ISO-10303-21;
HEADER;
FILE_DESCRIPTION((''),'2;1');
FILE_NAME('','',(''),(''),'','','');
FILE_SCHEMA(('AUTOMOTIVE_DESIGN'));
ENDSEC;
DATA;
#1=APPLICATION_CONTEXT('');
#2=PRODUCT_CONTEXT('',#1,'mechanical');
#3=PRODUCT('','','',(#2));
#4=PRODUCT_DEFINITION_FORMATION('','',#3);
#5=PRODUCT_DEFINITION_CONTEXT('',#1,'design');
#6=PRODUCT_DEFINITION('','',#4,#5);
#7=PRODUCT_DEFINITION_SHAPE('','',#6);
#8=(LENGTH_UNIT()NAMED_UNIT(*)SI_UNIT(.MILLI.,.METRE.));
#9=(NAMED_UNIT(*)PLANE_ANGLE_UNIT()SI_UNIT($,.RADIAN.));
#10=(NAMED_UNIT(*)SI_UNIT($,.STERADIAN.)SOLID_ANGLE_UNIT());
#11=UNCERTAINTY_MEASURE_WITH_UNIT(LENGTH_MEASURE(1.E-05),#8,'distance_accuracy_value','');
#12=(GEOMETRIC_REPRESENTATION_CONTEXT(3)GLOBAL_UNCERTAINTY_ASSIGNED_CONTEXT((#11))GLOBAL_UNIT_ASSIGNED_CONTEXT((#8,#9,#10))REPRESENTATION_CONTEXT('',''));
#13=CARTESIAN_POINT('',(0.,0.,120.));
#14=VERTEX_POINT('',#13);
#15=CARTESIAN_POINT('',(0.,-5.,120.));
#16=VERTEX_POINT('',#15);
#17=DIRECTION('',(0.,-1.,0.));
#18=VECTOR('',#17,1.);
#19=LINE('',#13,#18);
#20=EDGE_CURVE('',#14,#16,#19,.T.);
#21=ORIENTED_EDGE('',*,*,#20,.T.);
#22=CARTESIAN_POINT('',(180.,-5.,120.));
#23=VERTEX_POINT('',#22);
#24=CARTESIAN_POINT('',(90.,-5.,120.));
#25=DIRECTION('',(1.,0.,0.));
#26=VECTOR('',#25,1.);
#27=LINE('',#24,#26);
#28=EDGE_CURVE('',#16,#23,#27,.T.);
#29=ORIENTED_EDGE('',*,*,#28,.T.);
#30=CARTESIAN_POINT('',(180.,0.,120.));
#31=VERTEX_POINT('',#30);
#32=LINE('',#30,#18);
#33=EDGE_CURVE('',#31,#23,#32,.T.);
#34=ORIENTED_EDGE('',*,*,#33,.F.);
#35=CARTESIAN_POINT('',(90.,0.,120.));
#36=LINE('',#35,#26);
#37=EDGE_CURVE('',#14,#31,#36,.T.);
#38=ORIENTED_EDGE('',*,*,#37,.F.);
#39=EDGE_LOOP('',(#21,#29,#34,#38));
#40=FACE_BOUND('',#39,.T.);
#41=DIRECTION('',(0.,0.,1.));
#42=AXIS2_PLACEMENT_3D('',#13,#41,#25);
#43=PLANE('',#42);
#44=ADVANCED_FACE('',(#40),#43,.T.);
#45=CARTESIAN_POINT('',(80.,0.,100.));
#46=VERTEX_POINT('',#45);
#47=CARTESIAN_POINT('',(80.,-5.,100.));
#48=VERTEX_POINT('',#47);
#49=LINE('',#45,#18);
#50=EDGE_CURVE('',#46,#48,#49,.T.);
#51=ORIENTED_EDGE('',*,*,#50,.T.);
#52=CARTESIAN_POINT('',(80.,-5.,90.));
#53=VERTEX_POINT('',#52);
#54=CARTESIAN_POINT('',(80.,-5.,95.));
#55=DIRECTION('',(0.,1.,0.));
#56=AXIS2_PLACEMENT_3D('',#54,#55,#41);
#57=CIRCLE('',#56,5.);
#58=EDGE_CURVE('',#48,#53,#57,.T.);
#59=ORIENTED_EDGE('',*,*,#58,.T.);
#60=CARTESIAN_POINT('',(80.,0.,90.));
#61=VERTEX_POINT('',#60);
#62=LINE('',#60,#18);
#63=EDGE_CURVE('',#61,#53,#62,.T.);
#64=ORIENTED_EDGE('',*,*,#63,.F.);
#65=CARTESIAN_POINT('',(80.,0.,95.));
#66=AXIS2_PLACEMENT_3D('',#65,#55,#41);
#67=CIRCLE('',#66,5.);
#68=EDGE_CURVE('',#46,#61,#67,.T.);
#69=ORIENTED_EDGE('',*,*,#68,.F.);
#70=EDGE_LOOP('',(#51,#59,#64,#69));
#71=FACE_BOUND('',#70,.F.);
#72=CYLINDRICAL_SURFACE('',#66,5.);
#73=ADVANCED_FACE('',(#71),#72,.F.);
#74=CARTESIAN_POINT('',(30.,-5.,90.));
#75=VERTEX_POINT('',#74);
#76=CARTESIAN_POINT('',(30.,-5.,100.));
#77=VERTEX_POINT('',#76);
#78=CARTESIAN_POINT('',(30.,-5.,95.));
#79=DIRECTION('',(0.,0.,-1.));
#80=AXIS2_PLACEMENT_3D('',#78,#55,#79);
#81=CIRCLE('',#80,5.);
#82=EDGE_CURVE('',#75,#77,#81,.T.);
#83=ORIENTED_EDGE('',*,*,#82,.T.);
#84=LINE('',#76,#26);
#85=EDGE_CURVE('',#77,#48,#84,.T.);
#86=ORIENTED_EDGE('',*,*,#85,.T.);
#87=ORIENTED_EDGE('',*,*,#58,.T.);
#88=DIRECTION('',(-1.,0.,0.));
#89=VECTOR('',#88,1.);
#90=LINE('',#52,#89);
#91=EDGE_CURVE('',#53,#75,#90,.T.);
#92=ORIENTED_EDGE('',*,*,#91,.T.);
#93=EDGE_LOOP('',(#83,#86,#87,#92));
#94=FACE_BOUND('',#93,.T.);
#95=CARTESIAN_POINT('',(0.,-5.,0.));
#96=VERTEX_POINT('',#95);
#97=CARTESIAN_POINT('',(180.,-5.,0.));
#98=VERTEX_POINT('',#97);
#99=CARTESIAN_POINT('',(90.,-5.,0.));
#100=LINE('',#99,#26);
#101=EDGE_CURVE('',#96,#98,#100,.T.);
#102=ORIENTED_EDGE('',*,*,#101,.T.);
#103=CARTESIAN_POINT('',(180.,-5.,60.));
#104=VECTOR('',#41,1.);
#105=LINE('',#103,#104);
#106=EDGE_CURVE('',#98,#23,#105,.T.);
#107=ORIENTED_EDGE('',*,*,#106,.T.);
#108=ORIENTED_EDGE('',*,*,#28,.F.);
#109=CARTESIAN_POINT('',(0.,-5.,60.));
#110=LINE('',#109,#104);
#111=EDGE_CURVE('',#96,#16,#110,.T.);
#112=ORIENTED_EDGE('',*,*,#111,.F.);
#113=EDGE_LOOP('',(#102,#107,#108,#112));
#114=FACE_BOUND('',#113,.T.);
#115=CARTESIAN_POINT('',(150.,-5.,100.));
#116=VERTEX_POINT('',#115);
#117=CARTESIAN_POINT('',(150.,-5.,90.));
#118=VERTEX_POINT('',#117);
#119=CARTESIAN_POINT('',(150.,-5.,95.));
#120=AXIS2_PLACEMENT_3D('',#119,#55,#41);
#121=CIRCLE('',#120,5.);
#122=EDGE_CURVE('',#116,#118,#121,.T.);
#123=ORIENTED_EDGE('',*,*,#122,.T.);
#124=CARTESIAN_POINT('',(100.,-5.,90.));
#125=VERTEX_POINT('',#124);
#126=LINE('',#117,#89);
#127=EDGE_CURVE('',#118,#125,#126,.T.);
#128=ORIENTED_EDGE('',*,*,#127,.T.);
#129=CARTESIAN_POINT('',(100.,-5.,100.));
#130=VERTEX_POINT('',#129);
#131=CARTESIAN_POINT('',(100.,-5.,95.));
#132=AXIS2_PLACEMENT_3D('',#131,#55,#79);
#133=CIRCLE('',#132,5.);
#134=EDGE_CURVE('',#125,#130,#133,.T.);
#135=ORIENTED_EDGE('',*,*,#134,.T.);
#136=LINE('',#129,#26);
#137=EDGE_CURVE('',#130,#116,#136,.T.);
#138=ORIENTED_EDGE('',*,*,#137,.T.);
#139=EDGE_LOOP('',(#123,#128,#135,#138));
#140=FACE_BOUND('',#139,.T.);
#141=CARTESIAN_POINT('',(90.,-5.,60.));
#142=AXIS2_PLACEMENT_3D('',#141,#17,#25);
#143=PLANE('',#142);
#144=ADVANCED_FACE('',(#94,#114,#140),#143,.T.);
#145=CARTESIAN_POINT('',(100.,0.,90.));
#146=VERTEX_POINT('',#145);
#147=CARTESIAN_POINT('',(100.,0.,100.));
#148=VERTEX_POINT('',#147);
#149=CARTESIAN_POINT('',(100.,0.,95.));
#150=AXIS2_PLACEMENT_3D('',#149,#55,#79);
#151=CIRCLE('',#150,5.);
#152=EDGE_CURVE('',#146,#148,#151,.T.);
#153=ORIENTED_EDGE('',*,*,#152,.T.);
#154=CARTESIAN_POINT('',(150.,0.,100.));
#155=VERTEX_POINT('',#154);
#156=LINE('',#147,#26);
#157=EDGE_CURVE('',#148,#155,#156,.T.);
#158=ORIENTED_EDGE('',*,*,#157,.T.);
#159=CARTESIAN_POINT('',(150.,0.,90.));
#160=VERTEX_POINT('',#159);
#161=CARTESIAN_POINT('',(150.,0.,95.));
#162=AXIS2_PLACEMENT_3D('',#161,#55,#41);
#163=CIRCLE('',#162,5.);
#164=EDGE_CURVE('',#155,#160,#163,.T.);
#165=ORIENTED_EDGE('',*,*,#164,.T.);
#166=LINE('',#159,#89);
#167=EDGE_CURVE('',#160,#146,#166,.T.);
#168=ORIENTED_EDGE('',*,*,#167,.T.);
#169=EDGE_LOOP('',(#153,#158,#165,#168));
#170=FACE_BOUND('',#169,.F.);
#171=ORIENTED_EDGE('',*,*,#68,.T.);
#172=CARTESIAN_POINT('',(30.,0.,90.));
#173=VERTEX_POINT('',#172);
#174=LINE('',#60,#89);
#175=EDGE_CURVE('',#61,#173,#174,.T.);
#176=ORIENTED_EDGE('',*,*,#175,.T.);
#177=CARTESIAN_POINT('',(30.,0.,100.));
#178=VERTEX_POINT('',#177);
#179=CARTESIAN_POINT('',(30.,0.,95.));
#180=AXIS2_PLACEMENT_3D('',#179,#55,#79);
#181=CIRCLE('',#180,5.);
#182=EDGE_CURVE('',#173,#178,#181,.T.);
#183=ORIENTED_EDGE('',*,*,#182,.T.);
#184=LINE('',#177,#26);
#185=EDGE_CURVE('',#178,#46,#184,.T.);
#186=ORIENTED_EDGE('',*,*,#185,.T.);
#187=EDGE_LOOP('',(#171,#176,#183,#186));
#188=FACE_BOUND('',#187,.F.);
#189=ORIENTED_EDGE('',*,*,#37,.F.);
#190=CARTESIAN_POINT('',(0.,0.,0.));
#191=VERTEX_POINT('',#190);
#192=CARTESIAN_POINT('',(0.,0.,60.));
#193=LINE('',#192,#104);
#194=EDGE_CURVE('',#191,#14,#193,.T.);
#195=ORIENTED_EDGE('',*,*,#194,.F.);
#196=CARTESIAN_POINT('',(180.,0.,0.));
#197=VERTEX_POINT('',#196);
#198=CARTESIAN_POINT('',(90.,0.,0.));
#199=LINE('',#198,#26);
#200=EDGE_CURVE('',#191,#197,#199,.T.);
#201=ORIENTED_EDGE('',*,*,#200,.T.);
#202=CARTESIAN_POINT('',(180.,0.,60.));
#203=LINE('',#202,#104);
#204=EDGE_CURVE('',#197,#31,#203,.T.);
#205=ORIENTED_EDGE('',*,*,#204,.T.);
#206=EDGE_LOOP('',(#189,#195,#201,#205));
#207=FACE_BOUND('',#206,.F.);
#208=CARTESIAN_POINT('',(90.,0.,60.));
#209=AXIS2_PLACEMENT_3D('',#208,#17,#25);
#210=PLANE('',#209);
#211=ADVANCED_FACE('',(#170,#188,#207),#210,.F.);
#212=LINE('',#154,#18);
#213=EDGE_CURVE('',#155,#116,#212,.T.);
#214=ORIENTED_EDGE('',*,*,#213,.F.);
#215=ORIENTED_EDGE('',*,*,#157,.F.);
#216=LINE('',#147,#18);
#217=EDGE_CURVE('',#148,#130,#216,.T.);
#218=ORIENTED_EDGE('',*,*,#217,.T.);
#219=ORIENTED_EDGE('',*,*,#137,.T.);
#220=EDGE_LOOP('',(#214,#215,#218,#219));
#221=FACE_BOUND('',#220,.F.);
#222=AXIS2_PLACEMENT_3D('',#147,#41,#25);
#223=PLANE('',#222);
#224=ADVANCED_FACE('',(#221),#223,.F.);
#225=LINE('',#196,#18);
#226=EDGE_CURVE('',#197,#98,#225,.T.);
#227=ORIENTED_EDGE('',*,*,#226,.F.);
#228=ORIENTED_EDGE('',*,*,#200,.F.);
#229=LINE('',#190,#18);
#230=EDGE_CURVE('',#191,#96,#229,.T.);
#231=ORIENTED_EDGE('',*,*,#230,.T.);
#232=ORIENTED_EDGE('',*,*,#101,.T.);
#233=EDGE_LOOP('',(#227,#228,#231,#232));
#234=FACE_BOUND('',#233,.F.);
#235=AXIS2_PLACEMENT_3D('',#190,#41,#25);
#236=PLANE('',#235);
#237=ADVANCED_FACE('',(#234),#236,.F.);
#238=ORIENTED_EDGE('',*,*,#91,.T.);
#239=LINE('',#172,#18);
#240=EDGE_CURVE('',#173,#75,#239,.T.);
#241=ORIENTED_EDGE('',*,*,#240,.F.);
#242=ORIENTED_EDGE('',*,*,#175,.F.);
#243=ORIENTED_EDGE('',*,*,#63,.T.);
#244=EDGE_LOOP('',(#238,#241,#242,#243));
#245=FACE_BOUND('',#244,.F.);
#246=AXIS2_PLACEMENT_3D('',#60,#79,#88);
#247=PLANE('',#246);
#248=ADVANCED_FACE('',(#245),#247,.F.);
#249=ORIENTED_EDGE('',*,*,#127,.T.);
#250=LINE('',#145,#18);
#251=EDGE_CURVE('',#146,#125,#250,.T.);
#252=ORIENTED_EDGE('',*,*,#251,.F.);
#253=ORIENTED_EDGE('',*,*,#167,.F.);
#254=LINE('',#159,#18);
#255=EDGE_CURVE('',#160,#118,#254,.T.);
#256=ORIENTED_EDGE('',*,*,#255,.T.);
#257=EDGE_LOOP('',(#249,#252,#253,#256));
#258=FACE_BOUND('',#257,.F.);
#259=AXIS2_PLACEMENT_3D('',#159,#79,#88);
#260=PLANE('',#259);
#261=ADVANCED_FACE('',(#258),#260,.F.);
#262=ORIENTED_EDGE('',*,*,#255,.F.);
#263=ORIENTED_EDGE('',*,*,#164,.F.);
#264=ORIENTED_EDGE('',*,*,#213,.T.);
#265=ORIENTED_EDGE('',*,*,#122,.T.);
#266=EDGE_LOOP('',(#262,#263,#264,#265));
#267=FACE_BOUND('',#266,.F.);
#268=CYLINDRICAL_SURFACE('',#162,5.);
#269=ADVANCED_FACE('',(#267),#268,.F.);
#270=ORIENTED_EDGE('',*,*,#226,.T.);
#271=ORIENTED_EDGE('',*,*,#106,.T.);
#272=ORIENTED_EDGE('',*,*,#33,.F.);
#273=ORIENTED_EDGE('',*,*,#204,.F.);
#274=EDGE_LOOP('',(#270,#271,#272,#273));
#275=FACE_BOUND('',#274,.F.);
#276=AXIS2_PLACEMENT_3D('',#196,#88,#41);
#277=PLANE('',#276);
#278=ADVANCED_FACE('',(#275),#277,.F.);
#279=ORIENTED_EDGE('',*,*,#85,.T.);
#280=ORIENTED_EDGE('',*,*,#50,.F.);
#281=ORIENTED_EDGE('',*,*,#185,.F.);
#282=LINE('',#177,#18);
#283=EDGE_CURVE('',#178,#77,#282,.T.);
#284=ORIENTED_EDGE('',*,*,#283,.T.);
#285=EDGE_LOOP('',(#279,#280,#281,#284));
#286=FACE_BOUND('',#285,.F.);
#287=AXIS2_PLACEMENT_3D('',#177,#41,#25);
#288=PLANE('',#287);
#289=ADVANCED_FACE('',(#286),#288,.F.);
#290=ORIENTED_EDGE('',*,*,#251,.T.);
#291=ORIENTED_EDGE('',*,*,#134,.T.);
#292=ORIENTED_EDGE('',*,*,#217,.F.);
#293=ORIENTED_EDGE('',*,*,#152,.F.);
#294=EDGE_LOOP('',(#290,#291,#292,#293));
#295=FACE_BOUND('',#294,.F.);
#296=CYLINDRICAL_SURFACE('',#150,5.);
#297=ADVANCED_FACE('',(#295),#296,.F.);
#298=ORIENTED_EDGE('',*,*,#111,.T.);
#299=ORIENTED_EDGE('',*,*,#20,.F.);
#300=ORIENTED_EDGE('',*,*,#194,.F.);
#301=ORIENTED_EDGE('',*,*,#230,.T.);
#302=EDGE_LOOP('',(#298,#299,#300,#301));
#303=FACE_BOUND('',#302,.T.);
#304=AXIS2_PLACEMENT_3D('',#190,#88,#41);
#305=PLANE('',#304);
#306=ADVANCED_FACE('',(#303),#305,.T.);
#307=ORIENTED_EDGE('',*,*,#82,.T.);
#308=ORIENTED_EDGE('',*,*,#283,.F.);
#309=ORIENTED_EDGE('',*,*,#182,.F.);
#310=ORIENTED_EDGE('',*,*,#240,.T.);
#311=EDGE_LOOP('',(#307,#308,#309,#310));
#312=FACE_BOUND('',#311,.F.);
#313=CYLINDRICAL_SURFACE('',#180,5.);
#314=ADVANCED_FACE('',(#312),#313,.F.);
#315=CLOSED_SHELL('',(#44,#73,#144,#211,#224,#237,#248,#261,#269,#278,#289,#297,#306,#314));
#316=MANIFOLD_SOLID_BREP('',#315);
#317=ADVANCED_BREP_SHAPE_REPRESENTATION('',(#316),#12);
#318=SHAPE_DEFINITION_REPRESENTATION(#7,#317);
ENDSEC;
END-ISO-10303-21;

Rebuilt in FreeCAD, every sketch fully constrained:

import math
import FreeCAD as App
import Part
import Sketcher

V = App.Vector
Q = App.Units.Quantity

doc = App.newDocument("Part")
body = doc.addObject("PartDesign::Body", "Body")

# Sketch on XZ plane
sketch1 = body.newObject("Sketcher::SketchObject", "Sketch")
sketch1.AttachmentSupport = (doc.getObject("XZ_Plane"), [""])
sketch1.MapMode = "FlatFace"
sketch1.addGeometry([
    Part.LineSegment(V(0, 120, 0), V(0, 0, 0)),  # 0
    Part.LineSegment(V(0, 0, 0), V(180, 0, 0)),  # 1
    Part.LineSegment(V(180, 0, 0), V(180, 120, 0)),  # 2
    Part.LineSegment(V(180, 120, 0), V(0, 120, 0)),  # 3
    Part.LineSegment(V(80, 90, 0), V(30, 90, 0)),  # 4
    Part.ArcOfCircle(Part.Circle(V(30, 95, 0), V(0, 0, 1), 5), math.radians(90), math.radians(270)),  # 5
    Part.LineSegment(V(30, 100, 0), V(80, 100, 0)),  # 6
    Part.ArcOfCircle(Part.Circle(V(80, 95, 0), V(0, 0, 1), 5), math.radians(-90), math.radians(90)),  # 7
    Part.LineSegment(V(150, 90, 0), V(100, 90, 0)),  # 8
    Part.ArcOfCircle(Part.Circle(V(100, 95, 0), V(0, 0, 1), 5), math.radians(90), math.radians(270)),  # 9
    Part.LineSegment(V(100, 100, 0), V(150, 100, 0)),  # 10
    Part.ArcOfCircle(Part.Circle(V(150, 95, 0), V(0, 0, 1), 5), math.radians(-90), math.radians(90)),  # 11
], False)
sketch1.addConstraint([
    Sketcher.Constraint("Coincident", 0, 2, 1, 1),
    Sketcher.Constraint("Coincident", 1, 2, 2, 1),
    Sketcher.Constraint("Coincident", 2, 2, 3, 1),
    Sketcher.Constraint("Coincident", 3, 2, 0, 1),
    Sketcher.Constraint("Tangent", 4, 2, 5, 2),
    Sketcher.Constraint("Tangent", 5, 1, 6, 1),
    Sketcher.Constraint("Tangent", 6, 2, 7, 2),
    Sketcher.Constraint("Tangent", 7, 1, 4, 1),
    Sketcher.Constraint("Tangent", 8, 2, 9, 2),
    Sketcher.Constraint("Tangent", 9, 1, 10, 1),
    Sketcher.Constraint("Tangent", 10, 2, 11, 2),
    Sketcher.Constraint("Tangent", 11, 1, 8, 1),
    Sketcher.Constraint("Vertical", 0),
    Sketcher.Constraint("Horizontal", 1),
    Sketcher.Constraint("Vertical", 2),
    Sketcher.Constraint("Horizontal", 3),
    Sketcher.Constraint("Horizontal", 4),
    Sketcher.Constraint("Horizontal", 6),
    Sketcher.Constraint("Horizontal", 8),
    Sketcher.Constraint("Horizontal", 10),
    Sketcher.Constraint("Coincident", 0, 2, -1, 1),
    Sketcher.Constraint("Equal", 7, 9),
    Sketcher.Constraint("Horizontal", 7, 3, 9, 3),
    Sketcher.Constraint("Equal", 6, 8),
    Sketcher.Constraint("Radius", 5, Q("5 mm")),
    Sketcher.Constraint("DistanceX", 1, 1, 1, 2, Q("180 mm")),
    Sketcher.Constraint("DistanceX", 4, 2, 4, 1, Q("50 mm")),
    Sketcher.Constraint("DistanceY", 0, 2, 0, 1, Q("120 mm")),
    Sketcher.Constraint("DistanceX", -1, 1, 5, 3, Q("30 mm")),
    Sketcher.Constraint("DistanceY", -1, 1, 5, 3, Q("95 mm")),
    Sketcher.Constraint("DistanceX", -1, 1, 9, 3, Q("100 mm")),
])
pad1 = body.newObject("PartDesign::Pad", "Pad")
pad1.Profile = sketch1
pad1.Length = 5

doc.recompute()
